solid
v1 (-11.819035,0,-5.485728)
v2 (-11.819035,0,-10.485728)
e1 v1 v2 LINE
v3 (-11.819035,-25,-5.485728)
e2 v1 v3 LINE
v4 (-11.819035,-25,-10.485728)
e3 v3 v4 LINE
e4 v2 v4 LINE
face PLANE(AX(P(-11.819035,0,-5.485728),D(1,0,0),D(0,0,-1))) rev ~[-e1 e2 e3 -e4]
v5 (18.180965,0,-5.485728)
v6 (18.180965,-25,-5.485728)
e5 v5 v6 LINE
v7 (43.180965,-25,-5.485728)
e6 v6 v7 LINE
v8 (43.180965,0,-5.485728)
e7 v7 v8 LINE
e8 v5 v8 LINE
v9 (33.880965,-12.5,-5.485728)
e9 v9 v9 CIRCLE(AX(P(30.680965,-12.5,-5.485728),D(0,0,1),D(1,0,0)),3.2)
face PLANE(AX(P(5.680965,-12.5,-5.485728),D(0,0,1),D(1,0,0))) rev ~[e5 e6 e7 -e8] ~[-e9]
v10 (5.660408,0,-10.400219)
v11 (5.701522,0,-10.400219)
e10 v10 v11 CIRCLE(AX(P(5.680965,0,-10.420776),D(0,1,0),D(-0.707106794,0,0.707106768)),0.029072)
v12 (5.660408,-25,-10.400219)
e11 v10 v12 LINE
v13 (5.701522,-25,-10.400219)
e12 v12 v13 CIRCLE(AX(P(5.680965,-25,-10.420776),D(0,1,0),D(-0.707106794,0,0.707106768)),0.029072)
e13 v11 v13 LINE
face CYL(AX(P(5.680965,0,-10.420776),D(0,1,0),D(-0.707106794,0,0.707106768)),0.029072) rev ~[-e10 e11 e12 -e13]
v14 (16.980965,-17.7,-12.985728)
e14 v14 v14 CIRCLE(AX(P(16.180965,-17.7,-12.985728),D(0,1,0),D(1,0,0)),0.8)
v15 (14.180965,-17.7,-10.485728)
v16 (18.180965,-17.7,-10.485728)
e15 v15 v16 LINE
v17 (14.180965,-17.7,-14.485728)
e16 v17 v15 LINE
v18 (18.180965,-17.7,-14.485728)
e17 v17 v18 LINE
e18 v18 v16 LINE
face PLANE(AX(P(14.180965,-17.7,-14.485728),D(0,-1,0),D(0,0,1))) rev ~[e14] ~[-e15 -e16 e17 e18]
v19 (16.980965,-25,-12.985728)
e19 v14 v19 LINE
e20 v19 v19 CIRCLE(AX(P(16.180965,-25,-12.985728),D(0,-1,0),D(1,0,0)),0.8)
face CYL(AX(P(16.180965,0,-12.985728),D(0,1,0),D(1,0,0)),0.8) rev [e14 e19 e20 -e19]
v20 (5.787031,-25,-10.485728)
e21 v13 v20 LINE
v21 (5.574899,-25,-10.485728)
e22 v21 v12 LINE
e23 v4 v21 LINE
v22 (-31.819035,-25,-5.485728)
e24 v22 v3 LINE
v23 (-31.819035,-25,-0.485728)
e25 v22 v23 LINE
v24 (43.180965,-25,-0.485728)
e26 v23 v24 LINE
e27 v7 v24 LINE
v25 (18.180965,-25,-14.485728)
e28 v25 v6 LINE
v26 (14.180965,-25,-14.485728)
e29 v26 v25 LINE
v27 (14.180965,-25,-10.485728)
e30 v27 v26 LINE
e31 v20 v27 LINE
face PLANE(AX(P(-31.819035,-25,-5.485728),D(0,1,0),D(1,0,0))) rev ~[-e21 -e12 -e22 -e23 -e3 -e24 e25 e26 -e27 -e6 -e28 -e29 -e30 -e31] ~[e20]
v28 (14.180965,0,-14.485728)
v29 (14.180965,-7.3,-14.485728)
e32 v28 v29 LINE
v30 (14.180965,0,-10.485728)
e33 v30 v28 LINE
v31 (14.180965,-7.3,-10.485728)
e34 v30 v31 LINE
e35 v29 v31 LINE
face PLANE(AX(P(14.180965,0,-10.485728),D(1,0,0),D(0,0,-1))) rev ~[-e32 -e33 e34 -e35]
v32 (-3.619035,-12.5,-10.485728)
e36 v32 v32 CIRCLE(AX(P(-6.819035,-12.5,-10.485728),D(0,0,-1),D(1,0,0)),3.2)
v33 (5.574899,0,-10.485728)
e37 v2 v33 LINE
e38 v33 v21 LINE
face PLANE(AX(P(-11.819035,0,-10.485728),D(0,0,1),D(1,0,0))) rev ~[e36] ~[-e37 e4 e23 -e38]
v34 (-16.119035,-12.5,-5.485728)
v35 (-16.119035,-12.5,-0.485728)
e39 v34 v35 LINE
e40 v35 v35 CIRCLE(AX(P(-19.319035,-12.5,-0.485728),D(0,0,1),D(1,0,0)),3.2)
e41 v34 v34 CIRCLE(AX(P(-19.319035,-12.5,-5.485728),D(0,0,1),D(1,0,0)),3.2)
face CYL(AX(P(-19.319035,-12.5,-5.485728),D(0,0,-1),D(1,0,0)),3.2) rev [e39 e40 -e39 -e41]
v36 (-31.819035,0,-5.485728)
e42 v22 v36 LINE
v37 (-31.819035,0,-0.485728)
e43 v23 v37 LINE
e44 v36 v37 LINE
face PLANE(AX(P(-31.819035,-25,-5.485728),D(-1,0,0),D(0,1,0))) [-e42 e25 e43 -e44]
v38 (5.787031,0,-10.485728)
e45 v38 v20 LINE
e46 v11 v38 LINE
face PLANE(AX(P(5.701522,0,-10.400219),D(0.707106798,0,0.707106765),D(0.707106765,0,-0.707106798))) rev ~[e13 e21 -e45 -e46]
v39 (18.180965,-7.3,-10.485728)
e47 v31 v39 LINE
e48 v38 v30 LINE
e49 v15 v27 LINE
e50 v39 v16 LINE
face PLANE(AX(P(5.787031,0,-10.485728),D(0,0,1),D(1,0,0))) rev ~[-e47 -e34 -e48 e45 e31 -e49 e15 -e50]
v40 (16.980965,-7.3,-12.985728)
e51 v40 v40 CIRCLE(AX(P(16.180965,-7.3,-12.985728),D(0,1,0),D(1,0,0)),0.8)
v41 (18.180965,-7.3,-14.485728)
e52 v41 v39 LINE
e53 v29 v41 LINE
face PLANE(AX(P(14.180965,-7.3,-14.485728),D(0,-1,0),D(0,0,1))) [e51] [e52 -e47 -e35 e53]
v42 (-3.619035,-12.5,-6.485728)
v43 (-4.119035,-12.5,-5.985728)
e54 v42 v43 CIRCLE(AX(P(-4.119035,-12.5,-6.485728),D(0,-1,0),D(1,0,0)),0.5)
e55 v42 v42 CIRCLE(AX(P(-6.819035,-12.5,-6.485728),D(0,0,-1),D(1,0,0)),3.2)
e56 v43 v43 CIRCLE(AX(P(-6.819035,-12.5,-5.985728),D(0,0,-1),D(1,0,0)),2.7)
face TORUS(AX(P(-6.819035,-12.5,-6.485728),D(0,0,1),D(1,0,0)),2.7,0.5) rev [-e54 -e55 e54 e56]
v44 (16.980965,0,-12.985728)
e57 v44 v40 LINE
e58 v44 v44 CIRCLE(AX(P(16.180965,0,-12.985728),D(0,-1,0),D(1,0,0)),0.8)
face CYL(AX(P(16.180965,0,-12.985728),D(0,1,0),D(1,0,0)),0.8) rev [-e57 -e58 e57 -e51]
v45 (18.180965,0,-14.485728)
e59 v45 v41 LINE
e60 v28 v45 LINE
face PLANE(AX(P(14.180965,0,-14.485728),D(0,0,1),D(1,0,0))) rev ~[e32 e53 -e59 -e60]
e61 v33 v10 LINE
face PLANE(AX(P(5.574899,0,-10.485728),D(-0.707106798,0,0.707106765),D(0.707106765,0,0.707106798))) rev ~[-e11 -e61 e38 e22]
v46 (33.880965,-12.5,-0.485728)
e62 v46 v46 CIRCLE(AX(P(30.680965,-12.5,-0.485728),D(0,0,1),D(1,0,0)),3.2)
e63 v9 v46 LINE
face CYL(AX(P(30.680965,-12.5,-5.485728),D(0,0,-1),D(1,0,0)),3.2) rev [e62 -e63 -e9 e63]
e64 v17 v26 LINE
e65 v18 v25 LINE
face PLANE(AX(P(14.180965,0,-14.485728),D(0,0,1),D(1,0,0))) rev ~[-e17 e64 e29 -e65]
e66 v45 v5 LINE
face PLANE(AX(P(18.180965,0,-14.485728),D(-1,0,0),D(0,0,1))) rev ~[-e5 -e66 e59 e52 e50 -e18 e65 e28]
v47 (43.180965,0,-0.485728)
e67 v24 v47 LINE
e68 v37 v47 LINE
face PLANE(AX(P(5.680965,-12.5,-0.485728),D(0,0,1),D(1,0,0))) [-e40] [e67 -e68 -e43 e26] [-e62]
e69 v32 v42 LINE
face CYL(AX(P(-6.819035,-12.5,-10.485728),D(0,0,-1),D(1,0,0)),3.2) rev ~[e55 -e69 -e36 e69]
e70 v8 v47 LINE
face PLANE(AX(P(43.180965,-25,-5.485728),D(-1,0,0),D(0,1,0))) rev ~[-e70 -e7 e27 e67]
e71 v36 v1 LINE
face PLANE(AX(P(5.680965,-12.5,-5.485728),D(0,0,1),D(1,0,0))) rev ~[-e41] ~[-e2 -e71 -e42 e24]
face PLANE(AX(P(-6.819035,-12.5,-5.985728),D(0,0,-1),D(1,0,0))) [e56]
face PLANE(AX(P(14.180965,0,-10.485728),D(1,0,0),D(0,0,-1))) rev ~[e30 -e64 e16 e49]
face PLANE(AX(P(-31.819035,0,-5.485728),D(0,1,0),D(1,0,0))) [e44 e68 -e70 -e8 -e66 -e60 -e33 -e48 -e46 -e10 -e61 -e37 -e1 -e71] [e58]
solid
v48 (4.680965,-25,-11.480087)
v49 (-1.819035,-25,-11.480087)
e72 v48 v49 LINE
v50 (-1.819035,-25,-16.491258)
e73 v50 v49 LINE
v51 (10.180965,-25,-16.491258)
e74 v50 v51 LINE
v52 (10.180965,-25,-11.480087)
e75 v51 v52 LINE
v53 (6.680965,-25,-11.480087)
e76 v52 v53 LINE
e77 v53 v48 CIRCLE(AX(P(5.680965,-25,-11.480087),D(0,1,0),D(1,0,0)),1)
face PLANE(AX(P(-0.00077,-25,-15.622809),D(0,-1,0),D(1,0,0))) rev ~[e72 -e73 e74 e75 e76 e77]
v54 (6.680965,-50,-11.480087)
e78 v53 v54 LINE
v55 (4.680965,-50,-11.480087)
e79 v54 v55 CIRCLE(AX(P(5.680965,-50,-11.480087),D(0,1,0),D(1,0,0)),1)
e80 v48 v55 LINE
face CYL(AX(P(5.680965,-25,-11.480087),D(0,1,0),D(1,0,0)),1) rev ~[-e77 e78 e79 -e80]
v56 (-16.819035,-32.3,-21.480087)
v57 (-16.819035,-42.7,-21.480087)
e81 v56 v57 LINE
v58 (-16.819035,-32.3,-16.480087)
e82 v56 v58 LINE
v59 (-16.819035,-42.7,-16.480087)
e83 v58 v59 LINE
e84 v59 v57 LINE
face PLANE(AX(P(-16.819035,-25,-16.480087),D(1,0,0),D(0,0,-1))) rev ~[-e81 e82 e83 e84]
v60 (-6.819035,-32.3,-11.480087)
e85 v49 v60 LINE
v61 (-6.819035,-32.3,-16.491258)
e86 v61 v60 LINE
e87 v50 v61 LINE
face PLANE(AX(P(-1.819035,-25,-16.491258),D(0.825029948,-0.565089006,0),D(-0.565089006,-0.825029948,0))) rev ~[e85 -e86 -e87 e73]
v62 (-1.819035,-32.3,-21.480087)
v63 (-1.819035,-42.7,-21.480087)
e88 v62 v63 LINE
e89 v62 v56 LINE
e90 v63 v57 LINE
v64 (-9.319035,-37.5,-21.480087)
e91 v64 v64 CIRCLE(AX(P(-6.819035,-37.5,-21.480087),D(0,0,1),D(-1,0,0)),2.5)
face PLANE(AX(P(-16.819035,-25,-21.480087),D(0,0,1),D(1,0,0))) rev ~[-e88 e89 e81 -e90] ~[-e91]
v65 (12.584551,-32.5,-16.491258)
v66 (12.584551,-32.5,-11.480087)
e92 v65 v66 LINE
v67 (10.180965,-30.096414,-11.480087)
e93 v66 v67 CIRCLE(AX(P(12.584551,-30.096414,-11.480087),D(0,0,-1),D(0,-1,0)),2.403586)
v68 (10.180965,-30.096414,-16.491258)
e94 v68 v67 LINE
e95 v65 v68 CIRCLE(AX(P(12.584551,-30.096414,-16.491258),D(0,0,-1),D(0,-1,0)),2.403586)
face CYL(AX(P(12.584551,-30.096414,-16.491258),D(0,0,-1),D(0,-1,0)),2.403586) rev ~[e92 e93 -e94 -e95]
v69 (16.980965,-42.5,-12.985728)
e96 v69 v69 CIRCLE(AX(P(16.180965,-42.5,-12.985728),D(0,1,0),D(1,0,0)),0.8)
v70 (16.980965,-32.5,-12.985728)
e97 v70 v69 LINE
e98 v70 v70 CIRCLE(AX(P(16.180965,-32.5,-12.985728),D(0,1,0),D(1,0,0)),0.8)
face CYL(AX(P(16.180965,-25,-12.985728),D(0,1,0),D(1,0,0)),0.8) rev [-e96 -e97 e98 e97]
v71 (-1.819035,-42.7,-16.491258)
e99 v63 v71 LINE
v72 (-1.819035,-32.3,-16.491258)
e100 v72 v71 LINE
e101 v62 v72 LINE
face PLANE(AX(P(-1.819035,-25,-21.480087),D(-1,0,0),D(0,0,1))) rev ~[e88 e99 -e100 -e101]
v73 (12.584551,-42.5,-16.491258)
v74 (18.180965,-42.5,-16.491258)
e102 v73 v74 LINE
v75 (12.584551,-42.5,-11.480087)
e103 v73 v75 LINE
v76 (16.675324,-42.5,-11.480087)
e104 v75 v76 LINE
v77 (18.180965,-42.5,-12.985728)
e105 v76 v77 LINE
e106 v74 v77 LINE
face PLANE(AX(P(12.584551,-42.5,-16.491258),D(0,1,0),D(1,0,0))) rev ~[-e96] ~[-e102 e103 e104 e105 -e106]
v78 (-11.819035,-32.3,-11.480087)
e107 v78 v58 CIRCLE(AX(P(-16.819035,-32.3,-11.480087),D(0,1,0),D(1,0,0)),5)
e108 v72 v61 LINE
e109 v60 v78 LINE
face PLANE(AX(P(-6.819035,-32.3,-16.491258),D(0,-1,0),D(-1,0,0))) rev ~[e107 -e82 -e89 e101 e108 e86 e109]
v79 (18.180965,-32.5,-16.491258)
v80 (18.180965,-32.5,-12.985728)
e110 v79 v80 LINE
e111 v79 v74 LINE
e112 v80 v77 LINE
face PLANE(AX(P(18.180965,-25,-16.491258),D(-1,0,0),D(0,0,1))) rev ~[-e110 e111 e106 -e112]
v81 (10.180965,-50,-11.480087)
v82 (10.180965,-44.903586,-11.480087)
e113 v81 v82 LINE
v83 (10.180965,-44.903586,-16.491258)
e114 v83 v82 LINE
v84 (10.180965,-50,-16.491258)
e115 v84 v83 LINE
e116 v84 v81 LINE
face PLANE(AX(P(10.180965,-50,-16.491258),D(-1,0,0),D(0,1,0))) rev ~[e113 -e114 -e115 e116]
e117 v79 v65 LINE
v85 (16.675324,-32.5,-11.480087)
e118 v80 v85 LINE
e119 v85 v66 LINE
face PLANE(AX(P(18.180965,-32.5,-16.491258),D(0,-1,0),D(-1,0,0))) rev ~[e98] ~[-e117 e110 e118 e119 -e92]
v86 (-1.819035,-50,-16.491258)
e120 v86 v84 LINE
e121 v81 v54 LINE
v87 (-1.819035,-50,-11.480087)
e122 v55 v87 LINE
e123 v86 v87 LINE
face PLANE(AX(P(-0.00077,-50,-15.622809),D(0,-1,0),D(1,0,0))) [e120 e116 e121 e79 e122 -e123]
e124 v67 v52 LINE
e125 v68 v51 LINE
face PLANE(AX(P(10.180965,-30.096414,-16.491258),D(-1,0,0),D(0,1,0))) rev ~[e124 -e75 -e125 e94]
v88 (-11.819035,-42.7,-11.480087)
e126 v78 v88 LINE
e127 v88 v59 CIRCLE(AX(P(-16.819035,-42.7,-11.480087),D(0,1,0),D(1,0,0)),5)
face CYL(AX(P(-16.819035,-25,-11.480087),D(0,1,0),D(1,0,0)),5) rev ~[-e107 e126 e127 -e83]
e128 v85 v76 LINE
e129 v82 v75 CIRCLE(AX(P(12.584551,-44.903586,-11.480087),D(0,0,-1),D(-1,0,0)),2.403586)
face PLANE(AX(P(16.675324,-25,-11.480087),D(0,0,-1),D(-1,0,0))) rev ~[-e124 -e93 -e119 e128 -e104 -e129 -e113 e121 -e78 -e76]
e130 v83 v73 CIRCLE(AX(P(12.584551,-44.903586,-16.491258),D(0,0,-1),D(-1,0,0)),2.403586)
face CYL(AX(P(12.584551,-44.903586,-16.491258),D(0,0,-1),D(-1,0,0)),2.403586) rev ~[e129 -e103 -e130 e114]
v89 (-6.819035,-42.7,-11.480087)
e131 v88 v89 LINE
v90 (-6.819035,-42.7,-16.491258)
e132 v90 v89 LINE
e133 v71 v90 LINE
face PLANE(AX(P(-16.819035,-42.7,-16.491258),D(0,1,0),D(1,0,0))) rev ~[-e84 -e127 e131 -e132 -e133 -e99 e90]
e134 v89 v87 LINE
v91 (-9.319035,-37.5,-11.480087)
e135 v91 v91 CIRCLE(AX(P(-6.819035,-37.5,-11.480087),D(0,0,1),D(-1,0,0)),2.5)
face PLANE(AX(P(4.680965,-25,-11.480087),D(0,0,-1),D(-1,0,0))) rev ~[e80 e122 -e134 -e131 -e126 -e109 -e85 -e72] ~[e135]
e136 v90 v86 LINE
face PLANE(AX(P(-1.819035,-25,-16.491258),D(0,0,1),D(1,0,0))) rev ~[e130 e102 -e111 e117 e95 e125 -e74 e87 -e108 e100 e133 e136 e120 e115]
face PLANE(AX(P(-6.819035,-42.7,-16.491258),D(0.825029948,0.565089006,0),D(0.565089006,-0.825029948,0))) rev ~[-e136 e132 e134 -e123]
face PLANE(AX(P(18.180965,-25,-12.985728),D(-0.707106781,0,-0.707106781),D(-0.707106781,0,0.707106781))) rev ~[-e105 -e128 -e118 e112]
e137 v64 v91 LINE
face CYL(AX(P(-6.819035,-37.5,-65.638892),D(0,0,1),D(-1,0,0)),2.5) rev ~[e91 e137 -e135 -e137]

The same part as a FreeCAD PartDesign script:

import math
import FreeCAD as App
import Part
import Sketcher
Q = App.Units.Quantity


def edges_at(feature, points):
    """Names of the edges that pass closest to the given points."""
    edges = feature.Shape.Edges
    near = lambda p: min(range(len(edges)), key=lambda i: edges[i].distToShape(Part.Vertex(*p))[0])
    return sorted({f"Edge{near(p) + 1}" for p in points})

doc = App.newDocument("Part")
body = doc.addObject("PartDesign::Body", "Body")

# Sketch on XZ plane
sketch1 = doc.addObject("Sketcher::SketchObject", "Sketch")
body.addObject(sketch1)
sketch1.AttachmentSupport = (doc.XZ_Plane, [""])
sketch1.MapMode = "FlatFace"
sketch1.addGeometry(Part.LineSegment(App.Vector(5.787031, -10.485728, 0), App.Vector(14.180965, -10.485728, 0)), False)
sketch1.addGeometry(Part.LineSegment(App.Vector(14.180965, -10.485728, 0), App.Vector(14.180965, -14.485728, 0)), False)
sketch1.addGeometry(Part.LineSegment(App.Vector(14.180965, -14.485728, 0), App.Vector(18.180965, -14.485728, 0)), False)
sketch1.addGeometry(Part.LineSegment(App.Vector(18.180965, -14.485728, 0), App.Vector(18.180965, -5.485728, 0)), False)
sketch1.addGeometry(Part.LineSegment(App.Vector(18.180965, -5.485728, 0), App.Vector(-11.819035, -5.485728, 0)), False)
sketch1.addGeometry(Part.LineSegment(App.Vector(-11.819035, -5.485728, 0), App.Vector(-11.819035, -10.485728, 0)), False)
sketch1.addGeometry(Part.LineSegment(App.Vector(-11.819035, -10.485728, 0), App.Vector(5.574899, -10.485728, 0)), False)
sketch1.addGeometry(Part.LineSegment(App.Vector(5.574899, -10.485728, 0), App.Vector(5.660408, -10.400219, 0)), False)
sketch1.addGeometry(Part.ArcOfCircle(Part.Circle(App.Vector(5.680965, -10.420776, 0), App.Vector(0, 0, 1), 0.029072), math.radians(45), math.radians(135.000001)), False)
sketch1.addGeometry(Part.LineSegment(App.Vector(5.701522, -10.400219, 0), App.Vector(5.787031, -10.485728, 0)), False)
sketch1.addGeometry(Part.Circle(App.Vector(16.180965, -12.985728, 0), App.Vector(0, 0, 1), 0.8), False)
sketch1.addConstraint(Sketcher.Constraint("Coincident", 0, 2, 1, 1))
sketch1.addConstraint(Sketcher.Constraint("Coincident", 1, 2, 2, 1))
sketch1.addConstraint(Sketcher.Constraint("Coincident", 2, 2, 3, 1))
sketch1.addConstraint(Sketcher.Constraint("Coincident", 3, 2, 4, 1))
sketch1.addConstraint(Sketcher.Constraint("Coincident", 4, 2, 5, 1))
sketch1.addConstraint(Sketcher.Constraint("Coincident", 5, 2, 6, 1))
sketch1.addConstraint(Sketcher.Constraint("Coincident", 6, 2, 7, 1))
sketch1.addConstraint(Sketcher.Constraint("Tangent", 7, 2, 8, 2))
sketch1.addConstraint(Sketcher.Constraint("Tangent", 8, 1, 9, 1))
sketch1.addConstraint(Sketcher.Constraint("Coincident", 9, 2, 0, 1))
sketch1.addConstraint(Sketcher.Constraint("Horizontal", 0))
sketch1.addConstraint(Sketcher.Constraint("Vertical", 1))
sketch1.addConstraint(Sketcher.Constraint("Horizontal", 2))
sketch1.addConstraint(Sketcher.Constraint("Vertical", 3))
sketch1.addConstraint(Sketcher.Constraint("Horizontal", 4))
sketch1.addConstraint(Sketcher.Constraint("Vertical", 5))
sketch1.addConstraint(Sketcher.Constraint("Horizontal", 6))
sketch1.addConstraint(Sketcher.Constraint("Perpendicular", 7, 9))
sketch1.addConstraint(Sketcher.Constraint("Horizontal", 0, 2, 5, 2))
sketch1.addConstraint(Sketcher.Constraint("Horizontal", 7, 2, 8, 1))
sketch1.addConstraint(Sketcher.Constraint("Equal", 2, 1))
sketch1.addConstraint(Sketcher.Constraint("Diameter", 10, Q("1.6 mm")))
sketch1.addConstraint(Sketcher.Constraint("DistanceX", 2, 1, 2, 2, Q("4 mm")))
sketch1.addConstraint(Sketcher.Constraint("DistanceX", 4, 2, 4, 1, Q("30 mm")))
sketch1.addConstraint(Sketcher.Constraint("DistanceY", 3, 1, 3, 2, Q("9 mm")))
sketch1.addConstraint(Sketcher.Constraint("DistanceX", 0, 2, 10, 3, Q("2 mm")))
sketch1.addConstraint(Sketcher.Constraint("DistanceX", 8, 3, 10, 3, Q("10.5 mm")))
sketch1.addConstraint(Sketcher.Constraint("DistanceY", 10, 3, 0, 2, Q("2.5 mm")))
sketch1.addConstraint(Sketcher.Constraint("Radius", 8, Q("0.029072 mm")))
sketch1.addConstraint(Sketcher.Constraint("DistanceX", -1, 1, 6, 2, Q("5.574899 mm")))
sketch1.addConstraint(Sketcher.Constraint("DistanceX", 0, 1, 0, 2, Q("8.393934 mm")))
sketch1.addConstraint(Sketcher.Constraint("DistanceY", 10, 3, -1, 1, Q("12.985728 mm")))
pad1 = doc.addObject("PartDesign::Pad", "Pad")
body.addObject(pad1)
pad1.Profile = sketch1
pad1.Length = 25

# Sketch on XY plane
sketch2 = doc.addObject("Sketcher::SketchObject", "Sketch001")
body.addObject(sketch2)
sketch2.AttachmentSupport = (doc.XY_Plane, [""])
sketch2.MapMode = "FlatFace"
sketch2.AttachmentOffset = App.Placement(App.Vector(0, 0, -10.485728), App.Rotation())
sketch2.addGeometry(Part.Circle(App.Vector(-6.819035, -12.5, 0), App.Vector(0, 0, 1), 3.2), False)
sketch2.addConstraint(Sketcher.Constraint("Diameter", 0, Q("6.4 mm")))
sketch2.addConstraint(Sketcher.Constraint("DistanceY", 0, 3, -1, 1, Q("12.5 mm")))
sketch2.addConstraint(Sketcher.Constraint("DistanceX", 0, 3, -1, 1, Q("6.819035 mm")))
pocket1 = doc.addObject("PartDesign::Pocket", "Pocket")
body.addObject(pocket1)
pocket1.Profile = sketch2
pocket1.Length = 4.5
pocket1.Reversed = True

# Sketch on XY plane
sketch3 = doc.addObject("Sketcher::SketchObject", "Sketch002")
body.addObject(sketch3)
sketch3.AttachmentSupport = (doc.XY_Plane, [""])
sketch3.MapMode = "FlatFace"
sketch3.AttachmentOffset = App.Placement(App.Vector(0, 0, -5.485728), App.Rotation())
sketch3.addGeometry(Part.LineSegment(App.Vector(-31.819035, 0, 0), App.Vector(-31.819035, -25, 0)), False)
sketch3.addGeometry(Part.LineSegment(App.Vector(-31.819035, -25, 0), App.Vector(43.180965, -25, 0)), False)
sketch3.addGeometry(Part.LineSegment(App.Vector(43.180965, -25, 0), App.Vector(43.180965, 0, 0)), False)
sketch3.addGeometry(Part.LineSegment(App.Vector(43.180965, 0, 0), App.Vector(-31.819035, 0, 0)), False)
sketch3.addGeometry(Part.Circle(App.Vector(-19.319035, -12.5, 0), App.Vector(0, 0, 1), 3.2), False)
sketch3.addGeometry(Part.Circle(App.Vector(30.680965, -12.5, 0), App.Vector(0, 0, 1), 3.2), False)
sketch3.addConstraint(Sketcher.Constraint("Coincident", 0, 2, 1, 1))
sketch3.addConstraint(Sketcher.Constraint("Coincident", 1, 2, 2, 1))
sketch3.addConstraint(Sketcher.Constraint("Coincident", 2, 2, 3, 1))
sketch3.addConstraint(Sketcher.Constraint("Coincident", 3, 2, 0, 1))
sketch3.addConstraint(Sketcher.Constraint("Vertical", 0))
sketch3.addConstraint(Sketcher.Constraint("Horizontal", 1))
sketch3.addConstraint(Sketcher.Constraint("Vertical", 2))
sketch3.addConstraint(Sketcher.Constraint("Horizontal", 3))
sketch3.addConstraint(Sketcher.Constraint("Equal", 4, 5))
sketch3.addConstraint(Sketcher.Constraint("PointOnObject", 2, 2, -1))
sketch3.addConstraint(Sketcher.Constraint("Horizontal", 4, 3, 5, 3))
sketch3.addConstraint(Sketcher.Constraint("Diameter", 4, Q("6.4 mm")))
sketch3.addConstraint(Sketcher.Constraint("DistanceX", 1, 1, 1, 2, Q("75 mm")))
sketch3.addConstraint(Sketcher.Constraint("DistanceY", 0, 2, 0, 1, Q("25 mm")))
sketch3.addConstraint(Sketcher.Constraint("DistanceX", 4, 3, 5, 3, Q("50 mm")))
sketch3.addConstraint(Sketcher.Constraint("DistanceY", 4, 3, -1, 1, Q("12.5 mm")))
sketch3.addConstraint(Sketcher.Constraint("DistanceX", 0, 2, 4, 3, Q("12.5 mm")))
sketch3.addConstraint(Sketcher.Constraint("DistanceX", 4, 3, -1, 1, Q("19.319035 mm")))
pad2 = doc.addObject("PartDesign::Pad", "Pad001")
body.addObject(pad2)
pad2.Profile = sketch3
pad2.Length = 5

# Sketch on YZ plane
sketch4 = doc.addObject("Sketcher::SketchObject", "Sketch003")
body.addObject(sketch4)
sketch4.AttachmentSupport = (doc.YZ_Plane, [""])
sketch4.MapMode = "FlatFace"
sketch4.AttachmentOffset = App.Placement(App.Vector(0, 0, 14.180965), App.Rotation())
sketch4.addGeometry(Part.LineSegment(App.Vector(-7.3, -10.485728, 0), App.Vector(-7.3, -14.485728, 0)), False)
sketch4.addGeometry(Part.LineSegment(App.Vector(-7.3, -14.485728, 0), App.Vector(-17.7, -14.485728, 0)), False)
sketch4.addGeometry(Part.LineSegment(App.Vector(-17.7, -14.485728, 0), App.Vector(-17.7, -10.485728, 0)), False)
sketch4.addGeometry(Part.LineSegment(App.Vector(-17.7, -10.485728, 0), App.Vector(-7.3, -10.485728, 0)), False)
sketch4.addConstraint(Sketcher.Constraint("Coincident", 0, 2, 1, 1))
sketch4.addConstraint(Sketcher.Constraint("Coincident", 1, 2, 2, 1))
sketch4.addConstraint(Sketcher.Constraint("Coincident", 2, 2, 3, 1))
sketch4.addConstraint(Sketcher.Constraint("Coincident", 3, 2, 0, 1))
sketch4.addConstraint(Sketcher.Constraint("Vertical", 0))
sketch4.addConstraint(Sketcher.Constraint("Horizontal", 1))
sketch4.addConstraint(Sketcher.Constraint("Vertical", 2))
sketch4.addConstraint(Sketcher.Constraint("Horizontal", 3))
sketch4.addConstraint(Sketcher.Constraint("DistanceY", 0, 2, 0, 1, Q("4 mm")))
sketch4.addConstraint(Sketcher.Constraint("DistanceX", 1, 2, 1, 1, Q("10.4 mm")))
sketch4.addConstraint(Sketcher.Constraint("DistanceX", 0, 2, -1, 1, Q("7.3 mm")))
sketch4.addConstraint(Sketcher.Constraint("DistanceY", 0, 2, -1, 1, Q("14.485728 mm")))
pocket2 = doc.addObject("PartDesign::Pocket", "Pocket001")
body.addObject(pocket2)
pocket2.Profile = sketch4
pocket2.Length = 25
pocket2.Reversed = True
doc.recompute()

fillet = doc.addObject("PartDesign::Fillet", "Fillet")
body.addObject(fillet)
fillet.Base = (pocket2, edges_at(pocket2, [(-10.019, -12.5, -5.986)]))
fillet.Radius = 0.5
body2 = doc.addObject("PartDesign::Body", "Body001")

# Sketch on XZ plane
sketch5 = doc.addObject("Sketcher::SketchObject", "Sketch004")
body2.addObject(sketch5)
sketch5.AttachmentSupport = (doc.getObject("XZ_Plane001"), [""])
sketch5.MapMode = "FlatFace"
sketch5.AttachmentOffset = App.Placement(App.Vector(0, 0, 25), App.Rotation())
sketch5.addGeometry(Part.ArcOfCircle(Part.Circle(App.Vector(5.680965, -11.480087, 0), App.Vector(0, 0, 1), 1), math.radians(180), math.radians(360)), False)
sketch5.addGeometry(Part.LineSegment(App.Vector(4.680965, -11.480087, 0), App.Vector(-11.819035, -11.480087, 0)), False)
sketch5.addGeometry(Part.ArcOfCircle(Part.Circle(App.Vector(-16.819035, -11.480087, 0), App.Vector(0, 0, 1), 5), math.radians(-90), math.radians(0)), False)
sketch5.addGeometry(Part.LineSegment(App.Vector(-16.819035, -16.480087, 0), App.Vector(-16.819035, -21.480087, 0)), False)
sketch5.addGeometry(Part.LineSegment(App.Vector(-16.819035, -21.480087, 0), App.Vector(-1.819035, -21.480087, 0)), False)
sketch5.addGeometry(Part.LineSegment(App.Vector(-1.819035, -21.480087, 0), App.Vector(-1.819035, -16.491258, 0)), False)
sketch5.addGeometry(Part.LineSegment(App.Vector(-1.819035, -16.491258, 0), App.Vector(18.180965, -16.491258, 0)), False)
sketch5.addGeometry(Part.LineSegment(App.Vector(18.180965, -16.491258, 0), App.Vector(18.180965, -12.985728, 0)), False)
sketch5.addGeometry(Part.LineSegment(App.Vector(18.180965, -12.985728, 0), App.Vector(16.675324, -11.480087, 0)), False)
sketch5.addGeometry(Part.LineSegment(App.Vector(16.675324, -11.480087, 0), App.Vector(6.680965, -11.480087, 0)), False)
sketch5.addGeometry(Part.Circle(App.Vector(16.180965, -12.985728, 0), App.Vector(0, 0, 1), 0.8), False)
sketch5.addConstraint(Sketcher.Constraint("Coincident", 0, 1, 1, 1))
sketch5.addConstraint(Sketcher.Constraint("Coincident", 1, 2, 2, 2))
sketch5.addConstraint(Sketcher.Constraint("Coincident", 2, 1, 3, 1))
sketch5.addConstraint(Sketcher.Constraint("Coincident", 3, 2, 4, 1))
sketch5.addConstraint(Sketcher.Constraint("Coincident", 4, 2, 5, 1))
sketch5.addConstraint(Sketcher.Constraint("Coincident", 5, 2, 6, 1))
sketch5.addConstraint(Sketcher.Constraint("Coincident", 6, 2, 7, 1))
sketch5.addConstraint(Sketcher.Constraint("Coincident", 7, 2, 8, 1))
sketch5.addConstraint(Sketcher.Constraint("Coincident", 8, 2, 9, 1))
sketch5.addConstraint(Sketcher.Constraint("Coincident", 9, 2, 0, 2))
sketch5.addConstraint(Sketcher.Constraint("Horizontal", 1))
sketch5.addConstraint(Sketcher.Constraint("Vertical", 3))
sketch5.addConstraint(Sketcher.Constraint("Horizontal", 4))
sketch5.addConstraint(Sketcher.Constraint("Vertical", 5))
sketch5.addConstraint(Sketcher.Constraint("Horizontal", 6))
sketch5.addConstraint(Sketcher.Constraint("Vertical", 7))
sketch5.addConstraint(Sketcher.Constraint("Horizontal", 9))
sketch5.addConstraint(Sketcher.Constraint("Horizontal", 0, 3, 2, 3))
sketch5.addConstraint(Sketcher.Constraint("Horizontal", 2, 3, 0, 1))
sketch5.addConstraint(Sketcher.Constraint("Horizontal", 10, 3, 7, 2))
sketch5.addConstraint(Sketcher.Constraint("Horizontal", 1, 2, 8, 2))
sketch5.addConstraint(Sketcher.Constraint("Radius", 0, Q("1 mm")))
sketch5.addConstraint(Sketcher.Constraint("Radius", 2, Q("5 mm")))
sketch5.addConstraint(Sketcher.Constraint("Diameter", 10, Q("1.6 mm")))
sketch5.addConstraint(Sketcher.Constraint("DistanceX", 4, 1, 4, 2, Q("15 mm")))
sketch5.addConstraint(Sketcher.Constraint("DistanceX", 6, 1, 6, 2, Q("20 mm")))
sketch5.addConstraint(Sketcher.Constraint("DistanceY", 3, 2, 3, 1, Q("5 mm")))
sketch5.addConstraint(Sketcher.Constraint("Angle", 8, Q("135 deg")))
sketch5.addConstraint(Sketcher.Constraint("DistanceX", 1, 2, 1, 1, Q("16.5 mm")))
sketch5.addConstraint(Sketcher.Constraint("DistanceX", 2, 3, 10, 3, Q("33 mm")))
sketch5.addConstraint(Sketcher.Constraint("DistanceX", 2, 1, 1, 2, Q("5 mm")))
sketch5.addConstraint(Sketcher.Constraint("DistanceX", 9, 2, 9, 1, Q("9.994359 mm")))
sketch5.addConstraint(Sketcher.Constraint("DistanceY", 5, 1, 5, 2, Q("4.98883 mm")))
sketch5.addConstraint(Sketcher.Constraint("DistanceY", 10, 3, -1, 1, Q("12.985728 mm")))
sketch5.addConstraint(Sketcher.Constraint("DistanceX", -1, 1, 0, 3, Q("5.680965 mm")))
pad3 = doc.addObject("PartDesign::Pad", "Pad002")
body2.addObject(pad3)
pad3.Profile = sketch5
pad3.Length = 25

# Sketch on XY plane
sketch6 = doc.addObject("Sketcher::SketchObject", "Sketch005")
body2.addObject(sketch6)
sketch6.AttachmentSupport = (doc.getObject("XY_Plane001"), [""])
sketch6.MapMode = "FlatFace"
sketch6.AttachmentOffset = App.Placement(App.Vector(0, 0, -16.491258), App.Rotation())
sketch6.addGeometry(Part.LineSegment(App.Vector(12.584551, -42.5, 0), App.Vector(18.180965, -42.5, 0)), False)
sketch6.addGeometry(Part.LineSegment(App.Vector(18.180965, -42.5, 0), App.Vector(18.180965, -50, 0)), False)
sketch6.addGeometry(Part.LineSegment(App.Vector(18.180965, -50, 0), App.Vector(10.180965, -50, 0)), False)
sketch6.addGeometry(Part.LineSegment(App.Vector(10.180965, -50, 0), App.Vector(10.180965, -44.903586, 0)), False)
sketch6.addGeometry(Part.ArcOfCircle(Part.Circle(App.Vector(12.584551, -44.903586, 0), App.Vector(0, 0, 1), 2.403586), math.radians(90), math.radians(180)), False)
sketch6.addGeometry(Part.LineSegment(App.Vector(18.180965, -25, 0), App.Vector(18.180965, -32.5, 0)), False)
sketch6.addGeometry(Part.LineSegment(App.Vector(18.180965, -32.5, 0), App.Vector(12.584551, -32.5, 0)), False)
sketch6.addGeometry(Part.ArcOfCircle(Part.Circle(App.Vector(12.584551, -30.096414, 0), App.Vector(0, 0, 1), 2.403586), math.radians(180), math.radians(270)), False)
sketch6.addGeometry(Part.LineSegment(App.Vector(10.180965, -30.096414, 0), App.Vector(10.180965, -25, 0)), False)
sketch6.addGeometry(Part.LineSegment(App.Vector(10.180965, -25, 0), App.Vector(18.180965, -25, 0)), False)
sketch6.addConstraint(Sketcher.Constraint("Coincident", 0, 2, 1, 1))
sketch6.addConstraint(Sketcher.Constraint("Coincident", 1, 2, 2, 1))
sketch6.addConstraint(Sketcher.Constraint("Coincident", 2, 2, 3, 1))
sketch6.addConstraint(Sketcher.Constraint("Tangent", 3, 2, 4, 2))
sketch6.addConstraint(Sketcher.Constraint("Tangent", 4, 1, 0, 1))
sketch6.addConstraint(Sketcher.Constraint("Coincident", 5, 2, 6, 1))
sketch6.addConstraint(Sketcher.Constraint("Tangent", 6, 2, 7, 2))
sketch6.addConstraint(Sketcher.Constraint("Tangent", 7, 1, 8, 1))
sketch6.addConstraint(Sketcher.Constraint("Coincident", 8, 2, 9, 1))
sketch6.addConstraint(Sketcher.Constraint("Coincident", 9, 2, 5, 1))
sketch6.addConstraint(Sketcher.Constraint("Horizontal", 0))
sketch6.addConstraint(Sketcher.Constraint("Vertical", 1))
sketch6.addConstraint(Sketcher.Constraint("Horizontal", 2))
sketch6.addConstraint(Sketcher.Constraint("Vertical", 3))
sketch6.addConstraint(Sketcher.Constraint("Vertical", 5))
sketch6.addConstraint(Sketcher.Constraint("Horizontal", 6))
sketch6.addConstraint(Sketcher.Constraint("Vertical", 8))
sketch6.addConstraint(Sketcher.Constraint("Horizontal", 9))
sketch6.addConstraint(Sketcher.Constraint("Equal", 4, 7))
sketch6.addConstraint(Sketcher.Constraint("Vertical", 4, 3, 7, 3))
sketch6.addConstraint(Sketcher.Constraint("Vertical", 1, 2, 5, 2))
sketch6.addConstraint(Sketcher.Constraint("Equal", 1, 5))
sketch6.addConstraint(Sketcher.Constraint("DistanceX", 2, 2, 2, 1, Q("8 mm")))
sketch6.addConstraint(Sketcher.Constraint("DistanceY", 1, 2, 1, 1, Q("7.5 mm")))
sketch6.addConstraint(Sketcher.Constraint("DistanceY", 1, 2, -1, 1, Q("50 mm")))
sketch6.addConstraint(Sketcher.Constraint("DistanceY", 8, 2, -1, 1, Q("25 mm")))
sketch6.addConstraint(Sketcher.Constraint("Radius", 4, Q("2.403586 mm")))
sketch6.addConstraint(Sketcher.Constraint("DistanceX", -1, 1, 4, 3, Q("12.584551 mm")))
pocket3 = doc.addObject("PartDesign::Pocket", "Pocket002")
body2.addObject(pocket3)
pocket3.Profile = sketch6
pocket3.Type = "ThroughAll"
pocket3.Reversed = True

# Sketch on XY plane
sketch7 = doc.addObject("Sketcher::SketchObject", "Sketch006")
body2.addObject(sketch7)
sketch7.AttachmentSupport = (doc.getObject("XY_Plane001"), [""])
sketch7.MapMode = "FlatFace"
sketch7.AttachmentOffset = App.Placement(App.Vector(0, 0, -21.480087), App.Rotation())
sketch7.addGeometry(Part.Circle(App.Vector(-6.819035, -37.5, 0), App.Vector(0, 0, 1), 2.5), False)
sketch7.addConstraint(Sketcher.Constraint("Diameter", 0, Q("5 mm")))
sketch7.addConstraint(Sketcher.Constraint("DistanceY", 0, 3, -1, 1, Q("37.5 mm")))
sketch7.addConstraint(Sketcher.Constraint("DistanceX", 0, 3, -1, 1, Q("6.819035 mm")))
doc.recompute()
hole = doc.addObject("PartDesign::Hole", "Hole")
body2.addObject(hole)
hole.Profile = sketch7
hole.ThreadType = "None"
hole.Diameter = 5
hole.DepthType = "ThroughAll"
hole.Reversed = True

# Sketch on YZ plane
sketch8 = doc.addObject("Sketcher::SketchObject", "Sketch007")
body2.addObject(sketch8)
sketch8.AttachmentSupport = (doc.getObject("YZ_Plane001"), [""])
sketch8.MapMode = "FlatFace"
sketch8.AttachmentOffset = App.Placement(App.Vector(0, 0, -1.819035), App.Rotation())
sketch8.addGeometry(Part.LineSegment(App.Vector(-32.3, -16.491258, 0), App.Vector(-32.3, -21.480087, 0)), False)
sketch8.addGeometry(Part.LineSegment(App.Vector(-32.3, -21.480087, 0), App.Vector(-25, -21.480087, 0)), False)
sketch8.addGeometry(Part.LineSegment(App.Vector(-25, -21.480087, 0), App.Vector(-25, -16.491258, 0)), False)
sketch8.addGeometry(Part.LineSegment(App.Vector(-25, -16.491258, 0), App.Vector(-32.3, -16.491258, 0)), False)
sketch8.addGeometry(Part.LineSegment(App.Vector(-50, -16.491258, 0), App.Vector(-50, -21.480087, 0)), False)
sketch8.addGeometry(Part.LineSegment(App.Vector(-50, -21.480087, 0), App.Vector(-42.7, -21.480087, 0)), False)
sketch8.addGeometry(Part.LineSegment(App.Vector(-42.7, -21.480087, 0), App.Vector(-42.7, -16.491258, 0)), False)
sketch8.addGeometry(Part.LineSegment(App.Vector(-42.7, -16.491258, 0), App.Vector(-50, -16.491258, 0)), False)
sketch8.addConstraint(Sketcher.Constraint("Coincident", 0, 2, 1, 1))
sketch8.addConstraint(Sketcher.Constraint("Coincident", 1, 2, 2, 1))
sketch8.addConstraint(Sketcher.Constraint("Coincident", 2, 2, 3, 1))
sketch8.addConstraint(Sketcher.Constraint("Coincident", 3, 2, 0, 1))
sketch8.addConstraint(Sketcher.Constraint("Coincident", 4, 2, 5, 1))
sketch8.addConstraint(Sketcher.Constraint("Coincident", 5, 2, 6, 1))
sketch8.addConstraint(Sketcher.Constraint("Coincident", 6, 2, 7, 1))
sketch8.addConstraint(Sketcher.Constraint("Coincident", 7, 2, 4, 1))
sketch8.addConstraint(Sketcher.Constraint("Vertical", 0))
sketch8.addConstraint(Sketcher.Constraint("Horizontal", 1))
sketch8.addConstraint(Sketcher.Constraint("Vertical", 2))
sketch8.addConstraint(Sketcher.Constraint("Horizontal", 3))
sketch8.addConstraint(Sketcher.Constraint("Vertical", 4))
sketch8.addConstraint(Sketcher.Constraint("Horizontal", 5))
sketch8.addConstraint(Sketcher.Constraint("Vertical", 6))
sketch8.addConstraint(Sketcher.Constraint("Horizontal", 7))
sketch8.addConstraint(Sketcher.Constraint("Horizontal", 1, 2, 4, 2))
sketch8.addConstraint(Sketcher.Constraint("Horizontal", 3, 2, 6, 2))
sketch8.addConstraint(Sketcher.Constraint("Equal", 3, 5))
sketch8.addConstraint(Sketcher.Constraint("DistanceX", 1, 1, 1, 2, Q("7.3 mm")))
sketch8.addConstraint(Sketcher.Constraint("DistanceX", 1, 2, -1, 1, Q("25 mm")))
sketch8.addConstraint(Sketcher.Constraint("DistanceX", 4, 2, -1, 1, Q("50 mm")))
sketch8.addConstraint(Sketcher.Constraint("DistanceY", 0, 2, 0, 1, Q("4.98883 mm")))
sketch8.addConstraint(Sketcher.Constraint("DistanceY", 0, 2, -1, 1, Q("21.480087 mm")))
pocket4 = doc.addObject("PartDesign::Pocket", "Pocket003")
body2.addObject(pocket4)
pocket4.Profile = sketch8
pocket4.Length = 25

# Sketch on XY plane
sketch9 = doc.addObject("Sketcher::SketchObject", "Sketch008")
body2.addObject(sketch9)
sketch9.AttachmentSupport = (doc.getObject("XY_Plane001"), [""])
sketch9.MapMode = "FlatFace"
sketch9.AttachmentOffset = App.Placement(App.Vector(0, 0, -16.491258), App.Rotation())
sketch9.addGeometry(Part.LineSegment(App.Vector(-16.819035, -50, 0), App.Vector(-16.819035, -42.7, 0)), False)
sketch9.addGeometry(Part.LineSegment(App.Vector(-16.819035, -42.7, 0), App.Vector(-6.819035, -42.7, 0)), False)
sketch9.addGeometry(Part.LineSegment(App.Vector(-6.819035, -42.7, 0), App.Vector(-1.819035, -50, 0)), False)
sketch9.addGeometry(Part.LineSegment(App.Vector(-1.819035, -50, 0), App.Vector(-16.819035, -50, 0)), False)
sketch9.addGeometry(Part.LineSegment(App.Vector(-6.819035, -32.3, 0), App.Vector(-16.819035, -32.3, 0)), False)
sketch9.addGeometry(Part.LineSegment(App.Vector(-16.819035, -32.3, 0), App.Vector(-16.819035, -25, 0)), False)
sketch9.addGeometry(Part.LineSegment(App.Vector(-16.819035, -25, 0), App.Vector(-1.819035, -25, 0)), False)
sketch9.addGeometry(Part.LineSegment(App.Vector(-1.819035, -25, 0), App.Vector(-6.819035, -32.3, 0)), False)
sketch9.addConstraint(Sketcher.Constraint("Coincident", 0, 2, 1, 1))
sketch9.addConstraint(Sketcher.Constraint("Coincident", 1, 2, 2, 1))
sketch9.addConstraint(Sketcher.Constraint("Coincident", 2, 2, 3, 1))
sketch9.addConstraint(Sketcher.Constraint("Coincident", 3, 2, 0, 1))
sketch9.addConstraint(Sketcher.Constraint("Coincident", 4, 2, 5, 1))
sketch9.addConstraint(Sketcher.Constraint("Coincident", 5, 2, 6, 1))
sketch9.addConstraint(Sketcher.Constraint("Coincident", 6, 2, 7, 1))
sketch9.addConstraint(Sketcher.Constraint("Coincident", 7, 2, 4, 1))
sketch9.addConstraint(Sketcher.Constraint("Vertical", 0))
sketch9.addConstraint(Sketcher.Constraint("Horizontal", 1))
sketch9.addConstraint(Sketcher.Constraint("Horizontal", 3))
sketch9.addConstraint(Sketcher.Constraint("Horizontal", 4))
sketch9.addConstraint(Sketcher.Constraint("Vertical", 5))
sketch9.addConstraint(Sketcher.Constraint("Horizontal", 6))
sketch9.addConstraint(Sketcher.Constraint("Vertical", 3, 2, 4, 2))
sketch9.addConstraint(Sketcher.Constraint("Vertical", 2, 2, 6, 2))
sketch9.addConstraint(Sketcher.Constraint("Vertical", 1, 2, 7, 2))
sketch9.addConstraint(Sketcher.Constraint("Equal", 0, 5))
sketch9.addConstraint(Sketcher.Constraint("DistanceX", 1, 1, 1, 2, Q("10 mm")))
sketch9.addConstraint(Sketcher.Constraint("DistanceX", 3, 2, 3, 1, Q("15 mm")))
sketch9.addConstraint(Sketcher.Constraint("DistanceY", 0, 1, 0, 2, Q("7.3 mm")))
sketch9.addConstraint(Sketcher.Constraint("DistanceY", 2, 2, -1, 1, Q("50 mm")))
sketch9.addConstraint(Sketcher.Constraint("DistanceY", 5, 2, -1, 1, Q("25 mm")))
sketch9.addConstraint(Sketcher.Constraint("DistanceX", 0, 2, -1, 1, Q("16.819035 mm")))
pocket5 = doc.addObject("PartDesign::Pocket", "Pocket004")
body2.addObject(pocket5)
pocket5.Profile = sketch9
pocket5.Type = "ThroughAll"
pocket5.Reversed = True

doc.recompute()
